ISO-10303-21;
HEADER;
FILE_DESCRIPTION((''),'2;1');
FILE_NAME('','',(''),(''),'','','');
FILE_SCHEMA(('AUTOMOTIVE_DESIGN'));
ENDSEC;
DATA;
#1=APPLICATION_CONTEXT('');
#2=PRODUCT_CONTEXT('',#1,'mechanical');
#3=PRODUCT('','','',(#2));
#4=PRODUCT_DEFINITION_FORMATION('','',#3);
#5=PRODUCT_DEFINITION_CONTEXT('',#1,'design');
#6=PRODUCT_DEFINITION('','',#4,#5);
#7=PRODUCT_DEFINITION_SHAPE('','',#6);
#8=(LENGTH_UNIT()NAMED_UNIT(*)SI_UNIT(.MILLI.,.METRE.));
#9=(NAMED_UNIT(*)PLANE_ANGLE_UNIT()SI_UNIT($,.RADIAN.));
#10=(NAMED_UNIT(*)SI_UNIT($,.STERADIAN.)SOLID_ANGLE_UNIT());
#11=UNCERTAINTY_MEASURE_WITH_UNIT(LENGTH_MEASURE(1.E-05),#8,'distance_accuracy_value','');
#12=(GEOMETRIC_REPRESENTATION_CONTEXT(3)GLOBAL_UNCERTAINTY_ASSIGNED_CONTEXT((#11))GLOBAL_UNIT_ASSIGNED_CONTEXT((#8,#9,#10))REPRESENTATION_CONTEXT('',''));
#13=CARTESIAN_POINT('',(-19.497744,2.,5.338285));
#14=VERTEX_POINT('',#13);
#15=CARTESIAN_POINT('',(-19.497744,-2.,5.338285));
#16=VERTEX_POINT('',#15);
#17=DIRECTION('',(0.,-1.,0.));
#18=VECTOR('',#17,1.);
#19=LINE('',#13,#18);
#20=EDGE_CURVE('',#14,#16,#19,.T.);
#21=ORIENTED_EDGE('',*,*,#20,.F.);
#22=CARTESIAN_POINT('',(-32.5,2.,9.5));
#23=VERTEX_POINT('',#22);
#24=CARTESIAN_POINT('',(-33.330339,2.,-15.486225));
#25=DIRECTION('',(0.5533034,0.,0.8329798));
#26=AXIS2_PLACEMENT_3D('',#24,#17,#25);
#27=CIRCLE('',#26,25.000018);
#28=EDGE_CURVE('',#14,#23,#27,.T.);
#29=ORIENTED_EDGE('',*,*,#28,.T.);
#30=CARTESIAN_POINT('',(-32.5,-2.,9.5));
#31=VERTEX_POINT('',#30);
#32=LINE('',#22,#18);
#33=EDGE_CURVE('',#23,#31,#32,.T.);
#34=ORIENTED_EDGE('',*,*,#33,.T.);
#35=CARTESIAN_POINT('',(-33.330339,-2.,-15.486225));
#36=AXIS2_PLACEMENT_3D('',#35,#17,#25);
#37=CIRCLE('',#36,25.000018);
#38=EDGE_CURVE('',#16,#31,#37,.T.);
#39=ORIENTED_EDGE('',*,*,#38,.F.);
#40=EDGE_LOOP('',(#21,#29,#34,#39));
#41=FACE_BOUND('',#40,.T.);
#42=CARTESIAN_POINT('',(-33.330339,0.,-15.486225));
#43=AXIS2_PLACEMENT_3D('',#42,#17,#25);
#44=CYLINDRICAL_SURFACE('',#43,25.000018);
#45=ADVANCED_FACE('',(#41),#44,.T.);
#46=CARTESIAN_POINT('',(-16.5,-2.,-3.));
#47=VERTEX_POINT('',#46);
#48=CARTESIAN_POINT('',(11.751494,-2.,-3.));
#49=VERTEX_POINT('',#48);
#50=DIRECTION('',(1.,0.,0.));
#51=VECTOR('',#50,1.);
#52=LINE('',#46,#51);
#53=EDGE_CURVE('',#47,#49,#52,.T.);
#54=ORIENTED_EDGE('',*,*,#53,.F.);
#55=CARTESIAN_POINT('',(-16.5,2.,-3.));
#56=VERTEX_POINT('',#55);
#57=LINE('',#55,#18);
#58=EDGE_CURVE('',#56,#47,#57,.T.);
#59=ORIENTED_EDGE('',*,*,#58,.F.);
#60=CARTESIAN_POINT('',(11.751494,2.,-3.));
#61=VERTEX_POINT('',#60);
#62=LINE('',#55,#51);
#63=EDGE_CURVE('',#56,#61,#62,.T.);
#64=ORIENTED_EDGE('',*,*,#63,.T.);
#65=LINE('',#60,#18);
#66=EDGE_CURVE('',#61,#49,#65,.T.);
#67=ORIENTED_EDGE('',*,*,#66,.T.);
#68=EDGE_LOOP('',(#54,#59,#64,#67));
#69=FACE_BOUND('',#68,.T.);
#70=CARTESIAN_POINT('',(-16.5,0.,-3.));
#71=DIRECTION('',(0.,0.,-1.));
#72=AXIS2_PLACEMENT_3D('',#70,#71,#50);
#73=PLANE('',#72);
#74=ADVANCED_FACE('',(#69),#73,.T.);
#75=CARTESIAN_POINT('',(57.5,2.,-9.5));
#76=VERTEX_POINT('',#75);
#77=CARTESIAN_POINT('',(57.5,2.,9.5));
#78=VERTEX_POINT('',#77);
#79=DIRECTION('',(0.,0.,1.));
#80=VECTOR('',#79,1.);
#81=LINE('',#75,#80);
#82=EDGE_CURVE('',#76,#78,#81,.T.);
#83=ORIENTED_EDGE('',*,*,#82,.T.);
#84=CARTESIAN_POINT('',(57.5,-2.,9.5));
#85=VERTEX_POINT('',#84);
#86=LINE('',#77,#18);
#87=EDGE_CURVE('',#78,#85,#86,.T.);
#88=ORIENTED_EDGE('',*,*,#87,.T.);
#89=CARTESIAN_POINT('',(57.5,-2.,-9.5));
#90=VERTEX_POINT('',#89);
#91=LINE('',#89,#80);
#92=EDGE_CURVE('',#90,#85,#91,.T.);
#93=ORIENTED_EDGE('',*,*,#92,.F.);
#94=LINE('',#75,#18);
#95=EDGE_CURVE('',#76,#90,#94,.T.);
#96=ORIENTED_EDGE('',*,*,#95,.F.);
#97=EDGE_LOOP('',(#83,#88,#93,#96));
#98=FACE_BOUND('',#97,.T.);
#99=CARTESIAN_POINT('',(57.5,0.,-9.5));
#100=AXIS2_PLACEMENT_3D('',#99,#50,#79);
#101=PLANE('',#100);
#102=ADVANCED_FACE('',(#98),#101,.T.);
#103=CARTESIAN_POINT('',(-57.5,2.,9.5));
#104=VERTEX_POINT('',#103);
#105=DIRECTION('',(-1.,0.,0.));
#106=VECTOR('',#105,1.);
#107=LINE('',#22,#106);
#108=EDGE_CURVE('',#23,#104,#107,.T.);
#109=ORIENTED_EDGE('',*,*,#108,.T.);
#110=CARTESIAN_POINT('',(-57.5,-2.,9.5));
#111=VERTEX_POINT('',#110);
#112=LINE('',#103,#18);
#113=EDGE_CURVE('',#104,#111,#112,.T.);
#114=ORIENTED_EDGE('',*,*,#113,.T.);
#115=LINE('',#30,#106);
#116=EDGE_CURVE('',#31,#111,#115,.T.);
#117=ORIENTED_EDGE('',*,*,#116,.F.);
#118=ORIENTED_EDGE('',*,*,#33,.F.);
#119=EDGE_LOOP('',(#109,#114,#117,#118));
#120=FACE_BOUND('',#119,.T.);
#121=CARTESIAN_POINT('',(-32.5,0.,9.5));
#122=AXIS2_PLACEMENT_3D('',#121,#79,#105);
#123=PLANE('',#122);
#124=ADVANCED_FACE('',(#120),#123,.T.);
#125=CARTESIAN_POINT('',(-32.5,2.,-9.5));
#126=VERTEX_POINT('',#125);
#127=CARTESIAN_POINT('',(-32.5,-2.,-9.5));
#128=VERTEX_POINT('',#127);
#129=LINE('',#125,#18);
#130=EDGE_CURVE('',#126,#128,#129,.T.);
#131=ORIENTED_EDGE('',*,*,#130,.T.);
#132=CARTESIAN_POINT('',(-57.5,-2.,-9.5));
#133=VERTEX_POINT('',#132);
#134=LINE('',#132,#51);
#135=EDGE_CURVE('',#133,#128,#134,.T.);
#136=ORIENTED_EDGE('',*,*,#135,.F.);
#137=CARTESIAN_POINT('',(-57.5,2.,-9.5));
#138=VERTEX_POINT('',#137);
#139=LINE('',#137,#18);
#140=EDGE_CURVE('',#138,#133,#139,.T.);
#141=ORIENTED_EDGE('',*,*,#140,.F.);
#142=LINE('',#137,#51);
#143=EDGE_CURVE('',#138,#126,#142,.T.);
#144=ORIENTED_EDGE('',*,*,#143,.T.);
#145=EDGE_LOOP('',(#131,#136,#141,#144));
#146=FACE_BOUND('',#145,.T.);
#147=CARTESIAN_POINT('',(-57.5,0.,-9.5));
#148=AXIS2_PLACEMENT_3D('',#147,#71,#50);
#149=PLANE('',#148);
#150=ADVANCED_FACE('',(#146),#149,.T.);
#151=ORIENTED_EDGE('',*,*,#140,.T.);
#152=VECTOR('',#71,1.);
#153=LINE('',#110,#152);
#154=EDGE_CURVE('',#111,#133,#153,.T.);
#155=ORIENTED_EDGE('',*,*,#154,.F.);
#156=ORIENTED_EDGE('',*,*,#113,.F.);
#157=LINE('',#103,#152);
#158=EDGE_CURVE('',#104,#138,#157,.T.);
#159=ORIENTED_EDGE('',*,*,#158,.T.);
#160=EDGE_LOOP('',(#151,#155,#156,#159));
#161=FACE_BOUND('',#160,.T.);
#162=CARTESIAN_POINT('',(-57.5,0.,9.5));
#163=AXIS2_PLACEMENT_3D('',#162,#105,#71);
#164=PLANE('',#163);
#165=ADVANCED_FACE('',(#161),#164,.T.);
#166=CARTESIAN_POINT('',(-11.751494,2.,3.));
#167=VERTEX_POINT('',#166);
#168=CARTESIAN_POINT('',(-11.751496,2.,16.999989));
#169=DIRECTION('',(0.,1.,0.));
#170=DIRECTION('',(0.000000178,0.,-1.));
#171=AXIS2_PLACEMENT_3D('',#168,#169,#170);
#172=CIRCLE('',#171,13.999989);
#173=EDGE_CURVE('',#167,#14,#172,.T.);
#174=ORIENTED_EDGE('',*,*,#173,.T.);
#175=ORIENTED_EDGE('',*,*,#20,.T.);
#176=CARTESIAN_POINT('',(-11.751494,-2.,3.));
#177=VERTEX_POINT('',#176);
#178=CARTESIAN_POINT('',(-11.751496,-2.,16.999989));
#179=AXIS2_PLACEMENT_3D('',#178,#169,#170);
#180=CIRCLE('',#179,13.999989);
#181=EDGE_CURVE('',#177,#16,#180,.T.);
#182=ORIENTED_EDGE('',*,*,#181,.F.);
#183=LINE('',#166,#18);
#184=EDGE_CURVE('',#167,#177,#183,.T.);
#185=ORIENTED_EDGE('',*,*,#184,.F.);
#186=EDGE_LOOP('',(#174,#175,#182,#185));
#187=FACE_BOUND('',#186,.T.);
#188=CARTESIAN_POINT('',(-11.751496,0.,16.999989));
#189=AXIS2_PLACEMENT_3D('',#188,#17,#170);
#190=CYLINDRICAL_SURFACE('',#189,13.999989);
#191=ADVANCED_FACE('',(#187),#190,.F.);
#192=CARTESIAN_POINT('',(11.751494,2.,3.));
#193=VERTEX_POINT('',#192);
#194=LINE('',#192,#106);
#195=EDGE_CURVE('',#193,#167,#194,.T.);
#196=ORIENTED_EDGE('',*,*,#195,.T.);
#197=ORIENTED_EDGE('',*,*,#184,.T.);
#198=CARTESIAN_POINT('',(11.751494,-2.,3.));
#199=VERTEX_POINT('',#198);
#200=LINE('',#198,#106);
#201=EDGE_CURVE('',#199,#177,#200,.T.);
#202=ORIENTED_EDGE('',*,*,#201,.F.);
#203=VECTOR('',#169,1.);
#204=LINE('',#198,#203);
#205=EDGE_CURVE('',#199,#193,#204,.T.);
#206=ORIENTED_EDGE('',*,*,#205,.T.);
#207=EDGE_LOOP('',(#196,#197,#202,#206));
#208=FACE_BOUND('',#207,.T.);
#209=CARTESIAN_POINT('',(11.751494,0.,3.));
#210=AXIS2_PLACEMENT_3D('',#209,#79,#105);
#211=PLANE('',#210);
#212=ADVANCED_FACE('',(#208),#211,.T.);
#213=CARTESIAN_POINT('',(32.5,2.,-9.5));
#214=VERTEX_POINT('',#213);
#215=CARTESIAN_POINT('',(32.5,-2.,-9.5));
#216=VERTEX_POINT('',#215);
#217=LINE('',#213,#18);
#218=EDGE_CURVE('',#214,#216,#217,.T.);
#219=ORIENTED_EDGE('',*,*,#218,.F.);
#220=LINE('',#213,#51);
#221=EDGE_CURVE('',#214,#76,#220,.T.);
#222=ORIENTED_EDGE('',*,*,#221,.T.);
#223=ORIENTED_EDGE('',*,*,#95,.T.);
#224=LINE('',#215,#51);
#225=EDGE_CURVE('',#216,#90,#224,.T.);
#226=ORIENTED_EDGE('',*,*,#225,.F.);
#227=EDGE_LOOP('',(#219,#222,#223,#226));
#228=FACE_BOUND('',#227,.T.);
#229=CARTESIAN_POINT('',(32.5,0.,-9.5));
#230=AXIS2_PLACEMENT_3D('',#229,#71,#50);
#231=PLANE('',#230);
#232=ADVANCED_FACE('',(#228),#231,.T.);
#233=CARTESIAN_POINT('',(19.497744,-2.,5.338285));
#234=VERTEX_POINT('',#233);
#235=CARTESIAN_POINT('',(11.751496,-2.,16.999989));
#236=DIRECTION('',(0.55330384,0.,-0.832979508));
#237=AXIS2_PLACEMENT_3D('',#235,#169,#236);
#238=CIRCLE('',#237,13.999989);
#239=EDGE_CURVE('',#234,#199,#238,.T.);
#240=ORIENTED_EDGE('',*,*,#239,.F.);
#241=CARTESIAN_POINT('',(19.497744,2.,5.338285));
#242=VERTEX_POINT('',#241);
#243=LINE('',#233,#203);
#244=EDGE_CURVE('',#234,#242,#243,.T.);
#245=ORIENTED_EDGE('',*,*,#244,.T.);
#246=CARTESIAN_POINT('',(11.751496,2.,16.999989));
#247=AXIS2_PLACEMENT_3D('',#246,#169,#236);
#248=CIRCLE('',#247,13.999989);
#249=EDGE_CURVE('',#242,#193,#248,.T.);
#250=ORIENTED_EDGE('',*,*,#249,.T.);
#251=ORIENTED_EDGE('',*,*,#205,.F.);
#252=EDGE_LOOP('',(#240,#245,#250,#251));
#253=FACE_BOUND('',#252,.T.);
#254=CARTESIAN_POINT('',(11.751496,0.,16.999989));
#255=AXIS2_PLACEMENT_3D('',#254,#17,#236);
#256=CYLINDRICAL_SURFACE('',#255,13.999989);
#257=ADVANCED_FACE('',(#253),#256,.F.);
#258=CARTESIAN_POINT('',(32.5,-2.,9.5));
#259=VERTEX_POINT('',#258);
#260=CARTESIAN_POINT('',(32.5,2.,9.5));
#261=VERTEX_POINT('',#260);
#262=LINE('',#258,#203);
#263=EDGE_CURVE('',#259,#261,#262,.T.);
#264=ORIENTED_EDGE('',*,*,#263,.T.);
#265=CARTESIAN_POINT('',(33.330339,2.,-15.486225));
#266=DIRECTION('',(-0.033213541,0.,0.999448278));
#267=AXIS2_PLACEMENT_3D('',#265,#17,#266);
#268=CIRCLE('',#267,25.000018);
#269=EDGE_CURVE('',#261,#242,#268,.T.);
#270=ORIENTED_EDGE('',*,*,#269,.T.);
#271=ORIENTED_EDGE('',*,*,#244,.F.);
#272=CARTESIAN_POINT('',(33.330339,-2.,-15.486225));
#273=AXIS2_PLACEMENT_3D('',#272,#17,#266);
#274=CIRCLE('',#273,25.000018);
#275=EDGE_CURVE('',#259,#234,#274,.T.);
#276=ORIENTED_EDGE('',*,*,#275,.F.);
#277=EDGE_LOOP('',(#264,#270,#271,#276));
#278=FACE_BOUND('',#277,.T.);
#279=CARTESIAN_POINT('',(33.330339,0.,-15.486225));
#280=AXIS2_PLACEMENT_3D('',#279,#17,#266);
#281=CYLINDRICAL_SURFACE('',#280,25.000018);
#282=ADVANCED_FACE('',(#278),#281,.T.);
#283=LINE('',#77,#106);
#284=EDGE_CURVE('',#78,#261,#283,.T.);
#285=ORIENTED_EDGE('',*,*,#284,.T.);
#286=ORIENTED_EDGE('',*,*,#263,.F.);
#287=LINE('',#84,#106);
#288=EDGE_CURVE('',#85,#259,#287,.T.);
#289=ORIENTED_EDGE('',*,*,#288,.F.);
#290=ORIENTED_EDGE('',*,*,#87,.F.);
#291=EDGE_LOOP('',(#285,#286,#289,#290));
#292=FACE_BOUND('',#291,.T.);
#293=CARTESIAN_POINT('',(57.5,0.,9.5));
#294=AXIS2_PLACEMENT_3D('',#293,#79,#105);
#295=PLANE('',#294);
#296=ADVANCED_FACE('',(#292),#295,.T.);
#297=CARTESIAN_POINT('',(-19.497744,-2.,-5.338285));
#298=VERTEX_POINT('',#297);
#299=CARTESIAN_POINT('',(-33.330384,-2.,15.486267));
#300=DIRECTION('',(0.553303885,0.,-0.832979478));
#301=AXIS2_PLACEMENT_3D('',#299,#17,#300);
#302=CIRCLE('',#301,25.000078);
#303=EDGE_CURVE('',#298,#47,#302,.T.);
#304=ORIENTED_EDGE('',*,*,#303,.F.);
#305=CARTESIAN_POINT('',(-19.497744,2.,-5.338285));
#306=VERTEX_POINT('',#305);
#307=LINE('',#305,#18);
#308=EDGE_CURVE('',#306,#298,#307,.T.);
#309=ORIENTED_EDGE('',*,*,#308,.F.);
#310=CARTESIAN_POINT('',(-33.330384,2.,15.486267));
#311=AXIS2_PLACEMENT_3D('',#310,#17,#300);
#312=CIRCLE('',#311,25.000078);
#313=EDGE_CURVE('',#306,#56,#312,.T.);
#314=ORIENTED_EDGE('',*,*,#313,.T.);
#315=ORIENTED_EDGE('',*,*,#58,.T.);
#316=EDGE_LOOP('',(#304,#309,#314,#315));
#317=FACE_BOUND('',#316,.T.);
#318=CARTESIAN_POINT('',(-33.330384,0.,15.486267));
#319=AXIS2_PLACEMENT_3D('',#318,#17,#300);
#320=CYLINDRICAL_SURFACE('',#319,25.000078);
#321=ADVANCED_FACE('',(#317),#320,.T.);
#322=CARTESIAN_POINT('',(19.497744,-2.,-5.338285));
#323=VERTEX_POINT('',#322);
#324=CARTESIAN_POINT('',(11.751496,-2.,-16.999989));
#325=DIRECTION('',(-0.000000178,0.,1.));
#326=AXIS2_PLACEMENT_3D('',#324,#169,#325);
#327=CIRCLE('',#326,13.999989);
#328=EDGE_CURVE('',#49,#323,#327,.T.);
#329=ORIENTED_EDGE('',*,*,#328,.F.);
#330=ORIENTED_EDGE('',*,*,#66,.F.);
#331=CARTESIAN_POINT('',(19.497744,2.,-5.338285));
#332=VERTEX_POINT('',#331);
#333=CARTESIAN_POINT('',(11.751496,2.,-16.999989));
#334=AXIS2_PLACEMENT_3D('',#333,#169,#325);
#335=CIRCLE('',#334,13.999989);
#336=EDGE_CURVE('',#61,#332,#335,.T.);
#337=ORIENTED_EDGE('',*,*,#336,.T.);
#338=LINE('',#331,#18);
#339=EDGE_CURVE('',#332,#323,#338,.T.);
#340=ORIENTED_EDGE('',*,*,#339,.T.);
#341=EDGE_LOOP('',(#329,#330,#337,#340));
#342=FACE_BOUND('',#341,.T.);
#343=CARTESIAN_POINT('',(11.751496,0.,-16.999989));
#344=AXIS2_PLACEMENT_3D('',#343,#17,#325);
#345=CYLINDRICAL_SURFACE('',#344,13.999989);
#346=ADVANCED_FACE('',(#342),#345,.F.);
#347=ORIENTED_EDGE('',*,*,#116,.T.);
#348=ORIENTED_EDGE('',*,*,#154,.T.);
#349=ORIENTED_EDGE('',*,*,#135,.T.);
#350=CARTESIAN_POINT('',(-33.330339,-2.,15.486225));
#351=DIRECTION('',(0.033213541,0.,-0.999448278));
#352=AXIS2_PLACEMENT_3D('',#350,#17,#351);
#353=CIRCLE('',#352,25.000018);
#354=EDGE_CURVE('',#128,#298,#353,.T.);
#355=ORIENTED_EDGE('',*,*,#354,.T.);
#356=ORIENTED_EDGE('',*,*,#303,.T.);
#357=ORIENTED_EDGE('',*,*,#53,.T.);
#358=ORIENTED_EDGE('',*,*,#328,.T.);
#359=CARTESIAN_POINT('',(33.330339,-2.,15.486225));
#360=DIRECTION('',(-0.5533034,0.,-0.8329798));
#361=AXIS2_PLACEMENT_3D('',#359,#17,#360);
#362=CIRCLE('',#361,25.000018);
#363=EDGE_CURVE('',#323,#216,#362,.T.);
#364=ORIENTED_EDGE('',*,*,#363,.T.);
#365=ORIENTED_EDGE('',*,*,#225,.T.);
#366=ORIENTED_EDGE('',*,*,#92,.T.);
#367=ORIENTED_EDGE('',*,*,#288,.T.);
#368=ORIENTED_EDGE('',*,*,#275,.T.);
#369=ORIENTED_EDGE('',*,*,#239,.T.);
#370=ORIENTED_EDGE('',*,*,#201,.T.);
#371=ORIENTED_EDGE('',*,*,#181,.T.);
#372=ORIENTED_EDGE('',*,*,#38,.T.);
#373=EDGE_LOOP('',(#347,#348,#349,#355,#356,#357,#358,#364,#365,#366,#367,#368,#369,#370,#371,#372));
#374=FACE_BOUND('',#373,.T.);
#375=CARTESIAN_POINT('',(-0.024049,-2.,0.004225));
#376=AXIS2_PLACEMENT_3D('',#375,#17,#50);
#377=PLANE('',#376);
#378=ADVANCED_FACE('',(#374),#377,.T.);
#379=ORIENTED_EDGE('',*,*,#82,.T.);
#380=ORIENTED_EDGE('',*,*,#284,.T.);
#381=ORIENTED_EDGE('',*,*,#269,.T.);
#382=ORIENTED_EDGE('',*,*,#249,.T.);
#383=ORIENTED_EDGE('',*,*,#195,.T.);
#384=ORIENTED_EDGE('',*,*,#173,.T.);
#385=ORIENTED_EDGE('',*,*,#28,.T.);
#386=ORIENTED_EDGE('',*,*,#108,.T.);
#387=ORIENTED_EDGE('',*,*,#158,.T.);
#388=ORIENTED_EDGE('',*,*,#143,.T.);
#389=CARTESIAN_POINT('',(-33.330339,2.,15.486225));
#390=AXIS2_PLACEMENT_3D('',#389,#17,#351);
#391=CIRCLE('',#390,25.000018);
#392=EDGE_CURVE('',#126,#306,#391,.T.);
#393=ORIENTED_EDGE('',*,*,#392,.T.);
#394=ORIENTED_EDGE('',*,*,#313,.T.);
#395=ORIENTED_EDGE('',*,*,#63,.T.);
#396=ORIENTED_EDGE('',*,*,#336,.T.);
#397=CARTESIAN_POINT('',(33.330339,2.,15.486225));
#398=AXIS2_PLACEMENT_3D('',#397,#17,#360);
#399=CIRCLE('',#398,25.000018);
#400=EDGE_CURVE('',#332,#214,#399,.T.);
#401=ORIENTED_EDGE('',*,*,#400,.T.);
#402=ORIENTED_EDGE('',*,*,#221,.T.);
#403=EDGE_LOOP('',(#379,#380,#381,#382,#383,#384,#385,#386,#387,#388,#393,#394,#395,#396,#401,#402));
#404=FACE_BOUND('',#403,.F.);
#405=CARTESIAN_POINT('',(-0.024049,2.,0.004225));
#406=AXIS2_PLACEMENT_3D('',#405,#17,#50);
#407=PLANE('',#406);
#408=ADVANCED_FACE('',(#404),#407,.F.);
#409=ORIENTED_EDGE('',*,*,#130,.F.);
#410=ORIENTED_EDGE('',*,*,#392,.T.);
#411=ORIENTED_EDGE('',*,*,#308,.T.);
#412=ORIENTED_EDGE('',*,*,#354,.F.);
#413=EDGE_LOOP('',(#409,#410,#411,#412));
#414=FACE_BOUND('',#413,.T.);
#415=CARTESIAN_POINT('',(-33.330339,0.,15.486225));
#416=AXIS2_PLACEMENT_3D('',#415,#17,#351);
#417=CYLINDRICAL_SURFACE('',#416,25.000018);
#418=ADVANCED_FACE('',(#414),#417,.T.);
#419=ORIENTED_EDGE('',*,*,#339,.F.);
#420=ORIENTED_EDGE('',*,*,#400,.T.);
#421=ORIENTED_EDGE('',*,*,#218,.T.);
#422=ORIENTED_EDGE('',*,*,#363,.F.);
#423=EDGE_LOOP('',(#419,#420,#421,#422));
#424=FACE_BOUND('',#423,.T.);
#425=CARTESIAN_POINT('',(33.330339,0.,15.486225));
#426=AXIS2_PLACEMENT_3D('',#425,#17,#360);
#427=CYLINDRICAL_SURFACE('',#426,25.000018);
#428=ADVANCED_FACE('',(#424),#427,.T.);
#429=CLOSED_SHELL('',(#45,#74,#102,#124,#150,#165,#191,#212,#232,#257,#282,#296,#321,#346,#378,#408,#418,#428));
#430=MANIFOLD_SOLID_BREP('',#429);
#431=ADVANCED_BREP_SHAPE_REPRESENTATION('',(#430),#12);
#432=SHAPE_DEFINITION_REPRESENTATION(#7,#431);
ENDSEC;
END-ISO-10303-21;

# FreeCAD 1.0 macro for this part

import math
import FreeCAD as App
import Part
import Sketcher

V = App.Vector
Q = App.Units.Quantity

doc = App.newDocument("Part")
body = doc.addObject("PartDesign::Body", "Body")

sketch1 = body.newObject("Sketcher::SketchObject", "Sketch")
sketch1.AttachmentSupport = (doc.getObject("XZ_Plane"), [""])
sketch1.MapMode = "FlatFace"
sketch1.addGeometry([
    Part.LineSegment(V(11.751494, 3, 0), V(-11.751494, 3, 0)),
    Part.ArcOfCircle(Part.Circle(V(-11.751496, 16.999989, 0), V(0, 0, 1), 13.999989), math.radians(-123.593967), math.radians(-89.99999)),
    Part.ArcOfCircle(Part.Circle(V(-33.330339, -15.486225, 0), V(0, 0, 1), 25.000018), math.radians(56.406063), math.radians(88.096654)),
    Part.LineSegment(V(-32.5, 9.5, 0), V(-57.5, 9.5, 0)),
    Part.LineSegment(V(-57.5, 9.5, 0), V(-57.5, -9.5, 0)),
    Part.LineSegment(V(-57.5, -9.5, 0), V(-32.5, -9.5, 0)),
    Part.ArcOfCircle(Part.Circle(V(-33.330339, 15.486225, 0), V(0, 0, 1), 25.000018), math.radians(-88.096654), math.radians(-56.406063)),
    Part.ArcOfCircle(Part.Circle(V(-33.330384, 15.486267, 0), V(0, 0, 1), 25.000078), math.radians(-56.40603), math.radians(-47.684446)),
    Part.LineSegment(V(-16.5, -3, 0), V(11.751494, -3, 0)),
    Part.ArcOfCircle(Part.Circle(V(11.751496, -16.999989, 0), V(0, 0, 1), 13.999989), math.radians(56.406033), math.radians(90.00001)),
    Part.ArcOfCircle(Part.Circle(V(33.330339, 15.486225, 0), V(0, 0, 1), 25.000018), math.radians(-123.593937), math.radians(-91.903346)),
    Part.LineSegment(V(32.5, -9.5, 0), V(57.5, -9.5, 0)),
    Part.LineSegment(V(57.5, -9.5, 0), V(57.5, 9.5, 0)),
    Part.LineSegment(V(57.5, 9.5, 0), V(32.5, 9.5, 0)),
    Part.ArcOfCircle(Part.Circle(V(33.330339, -15.486225, 0), V(0, 0, 1), 25.000018), math.radians(91.903346), math.radians(123.593937)),
    Part.ArcOfCircle(Part.Circle(V(11.751496, 16.999989, 0), V(0, 0, 1), 13.999989), math.radians(-90.00001), math.radians(-56.406033)),
], False)
sketch1.addConstraint([
    Sketcher.Constraint("Tangent", 0, 2, 1, 2),
    Sketcher.Constraint("Tangent", 1, 1, 2, 1),
    Sketcher.Constraint("Coincident", 2, 2, 3, 1),
    Sketcher.Constraint("Coincident", 3, 2, 4, 1),
    Sketcher.Constraint("Coincident", 4, 2, 5, 1),
    Sketcher.Constraint("Coincident", 5, 2, 6, 1),
    Sketcher.Constraint("Tangent", 6, 2, 7, 1),
    Sketcher.Constraint("Coincident", 7, 2, 8, 1),
    Sketcher.Constraint("Tangent", 8, 2, 9, 2),
    Sketcher.Constraint("Tangent", 9, 1, 10, 1),
    Sketcher.Constraint("Coincident", 10, 2, 11, 1),
    Sketcher.Constraint("Coincident", 11, 2, 12, 1),
    Sketcher.Constraint("Coincident", 12, 2, 13, 1),
    Sketcher.Constraint("Coincident", 13, 2, 14, 1),
    Sketcher.Constraint("Tangent", 14, 2, 15, 2),
    Sketcher.Constraint("Tangent", 15, 1, 0, 1),
    Sketcher.Constraint("Horizontal", 0),
    Sketcher.Constraint("Horizontal", 3),
    Sketcher.Constraint("Vertical", 4),
    Sketcher.Constraint("Horizontal", 5),
    Sketcher.Constraint("Horizontal", 8),
    Sketcher.Constraint("Horizontal", 11),
    Sketcher.Constraint("Vertical", 12),
    Sketcher.Constraint("Horizontal", 13),
    Sketcher.Constraint("Equal", 2, 6),
    Sketcher.Constraint("Equal", 1, 9),
    Sketcher.Constraint("Equal", 6, 10),
    Sketcher.Constraint("Equal", 10, 14),
    Sketcher.Constraint("Equal", 9, 15),
    Sketcher.Constraint("Symmetric", 1, 3, 9, 3, -1, 1),
    Sketcher.Constraint("Symmetric", 6, 3, 14, 3, -1, 1),
    Sketcher.Constraint("Symmetric", 2, 2, 10, 2, -1, 1),
    Sketcher.Constraint("Symmetric", 4, 2, 12, 2, -1, 1),
    Sketcher.Constraint("Symmetric", 6, 3, 10, 3, -2),
    Sketcher.Constraint("Horizontal", 6, 2, 9, 1),
    Sketcher.Constraint("Horizontal", 5, 2, 10, 2),
    Sketcher.Constraint("DistanceX", 3, 2, 3, 1, Q("25 mm")),
    Sketcher.Constraint("DistanceY", 4, 2, 4, 1, Q("19 mm")),
    Sketcher.Constraint("DistanceY", -1, 1, 0, 2, Q("3 mm")),
    Sketcher.Constraint("DistanceX", 5, 2, 7, 2, Q("16 mm")),
    Sketcher.Constraint("DistanceX", 2, 2, -1, 1, Q("32.5 mm")),
    Sketcher.Constraint("Radius", 1, Q("13.999989 mm")),
    Sketcher.Constraint("Radius", 2, Q("25.000018 mm")),
    Sketcher.Constraint("Radius", 7, Q("25.000078 mm")),
])
pad1 = body.newObject("PartDesign::Pad", "Pad")
pad1.Profile = sketch1
pad1.Length = 4
pad1.Midplane = True

doc.recompute()
